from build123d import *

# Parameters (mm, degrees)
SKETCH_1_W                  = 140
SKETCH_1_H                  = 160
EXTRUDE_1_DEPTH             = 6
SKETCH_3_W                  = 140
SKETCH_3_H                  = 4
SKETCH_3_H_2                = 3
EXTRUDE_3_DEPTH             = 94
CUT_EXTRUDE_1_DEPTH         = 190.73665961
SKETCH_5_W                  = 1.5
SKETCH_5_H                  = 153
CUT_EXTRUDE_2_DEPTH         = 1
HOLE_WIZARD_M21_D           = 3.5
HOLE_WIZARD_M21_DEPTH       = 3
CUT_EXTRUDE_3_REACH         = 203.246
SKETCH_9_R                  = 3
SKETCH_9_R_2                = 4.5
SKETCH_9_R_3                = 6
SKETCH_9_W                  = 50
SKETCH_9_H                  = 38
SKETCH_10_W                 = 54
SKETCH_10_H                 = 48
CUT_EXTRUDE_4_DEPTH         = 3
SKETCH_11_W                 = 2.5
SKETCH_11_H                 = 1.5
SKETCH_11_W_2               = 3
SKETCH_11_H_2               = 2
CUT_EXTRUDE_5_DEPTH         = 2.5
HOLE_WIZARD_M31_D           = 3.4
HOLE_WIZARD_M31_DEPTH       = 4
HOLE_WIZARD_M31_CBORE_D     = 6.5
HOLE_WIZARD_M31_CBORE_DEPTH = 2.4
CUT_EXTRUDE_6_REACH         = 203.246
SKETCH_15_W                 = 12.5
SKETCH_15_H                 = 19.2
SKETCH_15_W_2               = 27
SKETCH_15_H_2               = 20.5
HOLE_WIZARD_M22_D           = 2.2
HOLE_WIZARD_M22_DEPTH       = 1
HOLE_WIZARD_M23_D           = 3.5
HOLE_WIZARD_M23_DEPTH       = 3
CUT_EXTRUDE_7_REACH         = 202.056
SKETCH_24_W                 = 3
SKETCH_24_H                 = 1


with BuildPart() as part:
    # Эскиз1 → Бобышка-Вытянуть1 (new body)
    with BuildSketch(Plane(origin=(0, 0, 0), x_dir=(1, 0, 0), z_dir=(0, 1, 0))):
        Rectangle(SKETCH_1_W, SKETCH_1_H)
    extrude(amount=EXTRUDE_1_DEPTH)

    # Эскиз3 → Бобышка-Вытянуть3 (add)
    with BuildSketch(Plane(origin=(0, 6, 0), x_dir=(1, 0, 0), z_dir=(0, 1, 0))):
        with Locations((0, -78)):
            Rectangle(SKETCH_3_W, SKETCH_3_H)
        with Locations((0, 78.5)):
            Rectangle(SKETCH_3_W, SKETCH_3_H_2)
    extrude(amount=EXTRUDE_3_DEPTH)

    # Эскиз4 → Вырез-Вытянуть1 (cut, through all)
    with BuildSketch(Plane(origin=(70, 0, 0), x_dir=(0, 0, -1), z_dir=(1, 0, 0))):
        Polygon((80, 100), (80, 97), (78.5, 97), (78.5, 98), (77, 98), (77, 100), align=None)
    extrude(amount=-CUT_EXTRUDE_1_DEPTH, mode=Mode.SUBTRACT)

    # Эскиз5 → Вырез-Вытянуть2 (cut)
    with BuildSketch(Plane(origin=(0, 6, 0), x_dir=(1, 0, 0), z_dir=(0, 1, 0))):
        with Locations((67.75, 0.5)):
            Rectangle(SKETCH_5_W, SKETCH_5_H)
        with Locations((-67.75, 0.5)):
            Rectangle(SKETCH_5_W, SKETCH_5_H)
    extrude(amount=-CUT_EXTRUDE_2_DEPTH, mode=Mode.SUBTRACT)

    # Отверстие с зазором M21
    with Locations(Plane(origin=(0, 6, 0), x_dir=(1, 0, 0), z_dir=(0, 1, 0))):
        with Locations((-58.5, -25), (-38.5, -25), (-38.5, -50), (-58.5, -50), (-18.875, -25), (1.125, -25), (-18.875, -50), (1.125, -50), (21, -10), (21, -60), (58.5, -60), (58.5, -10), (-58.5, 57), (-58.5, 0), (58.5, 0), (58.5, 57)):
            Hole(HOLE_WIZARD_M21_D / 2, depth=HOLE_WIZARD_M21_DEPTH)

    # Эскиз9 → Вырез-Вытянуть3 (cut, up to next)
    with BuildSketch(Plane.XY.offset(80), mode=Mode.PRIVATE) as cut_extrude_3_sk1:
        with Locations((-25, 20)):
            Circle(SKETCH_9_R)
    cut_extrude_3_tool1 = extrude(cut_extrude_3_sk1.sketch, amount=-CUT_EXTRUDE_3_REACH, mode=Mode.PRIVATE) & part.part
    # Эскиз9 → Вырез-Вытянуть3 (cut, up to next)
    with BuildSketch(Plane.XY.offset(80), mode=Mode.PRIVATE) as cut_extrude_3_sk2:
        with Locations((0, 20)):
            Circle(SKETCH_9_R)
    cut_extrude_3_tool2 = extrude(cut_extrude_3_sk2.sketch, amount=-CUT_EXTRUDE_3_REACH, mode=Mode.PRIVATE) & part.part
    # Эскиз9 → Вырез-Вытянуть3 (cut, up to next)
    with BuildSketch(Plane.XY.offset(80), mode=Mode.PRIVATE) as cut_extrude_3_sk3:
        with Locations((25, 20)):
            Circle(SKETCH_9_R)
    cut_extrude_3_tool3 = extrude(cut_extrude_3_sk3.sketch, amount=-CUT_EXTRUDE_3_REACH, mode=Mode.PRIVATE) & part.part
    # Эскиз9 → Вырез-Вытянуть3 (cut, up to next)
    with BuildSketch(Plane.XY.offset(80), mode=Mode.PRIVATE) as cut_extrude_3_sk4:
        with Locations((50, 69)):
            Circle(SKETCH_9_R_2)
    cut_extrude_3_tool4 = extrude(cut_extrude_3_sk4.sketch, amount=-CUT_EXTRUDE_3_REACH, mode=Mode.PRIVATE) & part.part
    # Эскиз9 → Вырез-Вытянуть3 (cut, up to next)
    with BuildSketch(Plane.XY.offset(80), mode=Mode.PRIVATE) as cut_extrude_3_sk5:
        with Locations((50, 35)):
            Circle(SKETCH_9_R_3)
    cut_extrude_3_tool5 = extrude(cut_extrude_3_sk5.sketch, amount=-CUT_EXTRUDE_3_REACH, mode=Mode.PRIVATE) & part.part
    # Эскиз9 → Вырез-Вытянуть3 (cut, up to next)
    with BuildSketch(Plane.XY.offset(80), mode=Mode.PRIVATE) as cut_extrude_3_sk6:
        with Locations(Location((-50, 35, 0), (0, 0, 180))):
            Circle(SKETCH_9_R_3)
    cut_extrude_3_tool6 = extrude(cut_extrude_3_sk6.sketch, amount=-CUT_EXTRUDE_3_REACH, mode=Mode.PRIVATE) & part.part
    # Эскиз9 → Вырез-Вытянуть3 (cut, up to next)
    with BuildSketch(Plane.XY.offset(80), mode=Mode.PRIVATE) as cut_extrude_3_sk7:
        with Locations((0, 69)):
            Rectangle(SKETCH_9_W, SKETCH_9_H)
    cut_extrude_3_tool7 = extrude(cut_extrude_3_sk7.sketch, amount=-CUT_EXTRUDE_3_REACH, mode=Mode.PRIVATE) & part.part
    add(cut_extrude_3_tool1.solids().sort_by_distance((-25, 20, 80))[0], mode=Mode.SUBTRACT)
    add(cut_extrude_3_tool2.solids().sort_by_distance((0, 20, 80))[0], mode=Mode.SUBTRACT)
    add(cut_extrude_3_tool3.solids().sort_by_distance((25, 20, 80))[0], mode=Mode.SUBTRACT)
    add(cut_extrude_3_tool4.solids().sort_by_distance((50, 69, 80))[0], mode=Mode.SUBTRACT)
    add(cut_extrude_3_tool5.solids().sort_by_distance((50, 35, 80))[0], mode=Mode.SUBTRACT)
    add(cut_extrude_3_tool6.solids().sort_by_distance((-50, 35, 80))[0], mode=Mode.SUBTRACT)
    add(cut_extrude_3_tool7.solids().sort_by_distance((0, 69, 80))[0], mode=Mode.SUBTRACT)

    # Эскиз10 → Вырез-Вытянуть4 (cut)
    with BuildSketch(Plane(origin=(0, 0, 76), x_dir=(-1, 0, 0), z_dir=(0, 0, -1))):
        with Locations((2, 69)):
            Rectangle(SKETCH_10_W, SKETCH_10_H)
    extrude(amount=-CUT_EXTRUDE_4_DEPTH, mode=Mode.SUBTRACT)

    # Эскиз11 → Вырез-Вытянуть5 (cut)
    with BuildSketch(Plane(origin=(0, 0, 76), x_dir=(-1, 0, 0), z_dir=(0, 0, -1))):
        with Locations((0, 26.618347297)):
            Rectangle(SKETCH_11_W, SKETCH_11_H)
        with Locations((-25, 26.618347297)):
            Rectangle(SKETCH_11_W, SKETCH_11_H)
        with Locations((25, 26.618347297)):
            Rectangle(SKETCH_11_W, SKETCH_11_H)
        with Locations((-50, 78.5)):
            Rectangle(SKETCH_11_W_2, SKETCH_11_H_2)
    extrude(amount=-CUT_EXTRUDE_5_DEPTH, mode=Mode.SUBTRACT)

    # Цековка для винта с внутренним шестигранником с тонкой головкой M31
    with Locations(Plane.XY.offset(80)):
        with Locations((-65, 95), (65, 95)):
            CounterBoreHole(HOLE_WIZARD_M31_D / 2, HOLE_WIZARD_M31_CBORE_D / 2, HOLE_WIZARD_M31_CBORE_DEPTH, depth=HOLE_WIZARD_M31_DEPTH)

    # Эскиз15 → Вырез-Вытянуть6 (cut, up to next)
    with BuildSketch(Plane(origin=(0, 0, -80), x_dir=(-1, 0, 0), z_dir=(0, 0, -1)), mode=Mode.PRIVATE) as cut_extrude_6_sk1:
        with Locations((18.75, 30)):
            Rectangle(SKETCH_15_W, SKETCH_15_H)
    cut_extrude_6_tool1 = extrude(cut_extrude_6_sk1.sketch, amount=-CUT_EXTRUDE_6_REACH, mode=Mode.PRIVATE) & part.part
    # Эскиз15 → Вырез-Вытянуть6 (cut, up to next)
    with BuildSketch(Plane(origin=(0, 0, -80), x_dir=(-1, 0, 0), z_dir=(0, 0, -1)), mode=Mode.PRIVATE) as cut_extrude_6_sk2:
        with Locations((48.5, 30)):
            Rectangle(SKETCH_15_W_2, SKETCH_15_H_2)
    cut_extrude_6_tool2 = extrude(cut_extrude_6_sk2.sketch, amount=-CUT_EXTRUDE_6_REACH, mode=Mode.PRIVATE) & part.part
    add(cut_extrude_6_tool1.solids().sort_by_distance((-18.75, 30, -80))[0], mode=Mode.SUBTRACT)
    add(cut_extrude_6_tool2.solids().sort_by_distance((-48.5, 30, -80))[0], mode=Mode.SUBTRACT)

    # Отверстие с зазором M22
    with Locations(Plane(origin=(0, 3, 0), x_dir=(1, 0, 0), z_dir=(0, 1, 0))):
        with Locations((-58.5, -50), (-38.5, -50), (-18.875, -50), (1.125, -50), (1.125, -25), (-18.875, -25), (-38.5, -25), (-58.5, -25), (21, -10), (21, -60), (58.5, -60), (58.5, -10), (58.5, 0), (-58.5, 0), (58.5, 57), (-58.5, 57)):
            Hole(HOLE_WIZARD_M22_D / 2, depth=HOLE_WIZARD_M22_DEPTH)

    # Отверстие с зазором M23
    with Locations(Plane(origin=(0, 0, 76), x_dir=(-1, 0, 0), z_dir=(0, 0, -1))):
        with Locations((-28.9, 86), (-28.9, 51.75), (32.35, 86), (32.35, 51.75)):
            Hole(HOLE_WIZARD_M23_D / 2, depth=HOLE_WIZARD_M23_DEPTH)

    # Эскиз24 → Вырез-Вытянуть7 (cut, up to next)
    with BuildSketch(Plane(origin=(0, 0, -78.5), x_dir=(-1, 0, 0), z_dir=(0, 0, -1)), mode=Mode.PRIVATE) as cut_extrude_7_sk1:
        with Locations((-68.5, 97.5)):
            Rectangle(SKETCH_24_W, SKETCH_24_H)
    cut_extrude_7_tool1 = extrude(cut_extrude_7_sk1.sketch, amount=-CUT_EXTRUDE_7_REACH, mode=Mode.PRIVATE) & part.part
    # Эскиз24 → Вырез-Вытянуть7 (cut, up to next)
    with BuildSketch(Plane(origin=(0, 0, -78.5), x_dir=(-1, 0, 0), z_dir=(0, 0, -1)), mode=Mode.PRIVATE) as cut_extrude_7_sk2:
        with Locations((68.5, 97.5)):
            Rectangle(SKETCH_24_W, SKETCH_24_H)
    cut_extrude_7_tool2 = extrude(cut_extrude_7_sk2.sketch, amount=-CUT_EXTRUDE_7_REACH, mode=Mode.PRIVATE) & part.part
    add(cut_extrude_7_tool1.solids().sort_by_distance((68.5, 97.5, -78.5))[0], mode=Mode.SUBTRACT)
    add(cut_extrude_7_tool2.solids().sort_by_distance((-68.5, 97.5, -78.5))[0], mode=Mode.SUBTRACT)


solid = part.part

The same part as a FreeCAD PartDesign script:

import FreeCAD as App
import Part
import Sketcher


def add_polygon(sketch, points):
    """Adds a closed chain of lines whose ends are joined by coincident constraints."""
    first, n = sketch.GeometryCount, len(points)
    for a, b in zip(points, points[1:] + points[:1]):
        sketch.addGeometry(Part.LineSegment(App.Vector(*a, 0), App.Vector(*b, 0)), False)
    for i in range(n):
        sketch.addConstraint(Sketcher.Constraint("Coincident", first + i, 2, first + (i + 1) % n, 1))

doc = App.newDocument("Part")
body = doc.addObject("PartDesign::Body", "Body")

sketch1 = body.newObject("Sketcher::SketchObject", "Sketch")
sketch1.AttachmentSupport = (doc.getObject("XZ_Plane"), [""])
sketch1.MapMode = "FlatFace"
add_polygon(sketch1, [(-70, -80), (-70, 80), (70, 80), (70, -80)])
sketch1.addConstraint(Sketcher.Constraint("Vertical", 0))
sketch1.addConstraint(Sketcher.Constraint("Horizontal", 1))
sketch1.addConstraint(Sketcher.Constraint("Vertical", 2))
sketch1.addConstraint(Sketcher.Constraint("Horizontal", 3))
sketch1.addConstraint(Sketcher.Constraint("Symmetric", 0, 2, 2, 2, -1, 1))
sketch1.addConstraint(Sketcher.Constraint("DistanceX", 1, 1, 1, 2, 140.0))
sketch1.addConstraint(Sketcher.Constraint("DistanceY", 0, 1, 0, 2, 160.0))
pad1 = body.newObject("PartDesign::Pad", "Pad")
pad1.Profile = sketch1
pad1.Length = 6
pad1.Reversed = True

sketch2 = body.newObject("Sketcher::SketchObject", "Sketch001")
sketch2.AttachmentSupport = (doc.getObject("XZ_Plane"), [""])
sketch2.MapMode = "FlatFace"
sketch2.AttachmentOffset = App.Placement(App.Vector(0, 0, -6), App.Rotation())
add_polygon(sketch2, [(-70, 76), (-70, 80), (70, 80), (70, 76)])
add_polygon(sketch2, [(-70, -80), (-70, -77), (70, -77), (70, -80)])
sketch2.addConstraint(Sketcher.Constraint("Vertical", 0))
sketch2.addConstraint(Sketcher.Constraint("Horizontal", 1))
sketch2.addConstraint(Sketcher.Constraint("Vertical", 2))
sketch2.addConstraint(Sketcher.Constraint("Horizontal", 3))
sketch2.addConstraint(Sketcher.Constraint("Vertical", 4))
sketch2.addConstraint(Sketcher.Constraint("Horizontal", 5))
sketch2.addConstraint(Sketcher.Constraint("Vertical", 6))
sketch2.addConstraint(Sketcher.Constraint("Horizontal", 7))
sketch2.addConstraint(Sketcher.Constraint("Symmetric", 0, 2, 6, 2, -1, 1))
sketch2.addConstraint(Sketcher.Constraint("Vertical", 3, 2, 4, 2))
sketch2.addConstraint(Sketcher.Constraint("Vertical", 2, 2, 5, 2))
sketch2.addConstraint(Sketcher.Constraint("DistanceX", 1, 1, 1, 2, 140.0))
sketch2.addConstraint(Sketcher.Constraint("DistanceY", 0, 1, 0, 2, 4.0))
sketch2.addConstraint(Sketcher.Constraint("DistanceY", 4, 1, 4, 2, 3.0))
sketch2.addConstraint(Sketcher.Constraint("DistanceY", -1, 1, 0, 2, 80.0))
pad2 = body.newObject("PartDesign::Pad", "Pad001")
pad2.Profile = sketch2
pad2.Length = 94
pad2.Reversed = True

sketch3 = body.newObject("Sketcher::SketchObject", "Sketch002")
sketch3.AttachmentSupport = (doc.getObject("YZ_Plane"), [""])
sketch3.MapMode = "FlatFace"
sketch3.AttachmentOffset = App.Placement(App.Vector(0, 0, 70), App.Rotation())
add_polygon(sketch3, [(97, -80), (100, -80), (100, -77), (98, -77), (98, -78.5), (97, -78.5)])
sketch3.addConstraint(Sketcher.Constraint("Horizontal", 0))
sketch3.addConstraint(Sketcher.Constraint("Vertical", 1))
sketch3.addConstraint(Sketcher.Constraint("Horizontal", 2))
sketch3.addConstraint(Sketcher.Constraint("Vertical", 3))
sketch3.addConstraint(Sketcher.Constraint("Horizontal", 4))
sketch3.addConstraint(Sketcher.Constraint("Vertical", 5))
sketch3.addConstraint(Sketcher.Constraint("Equal", 0, 1))
sketch3.addConstraint(Sketcher.Constraint("Equal", 3, 5))
sketch3.addConstraint(Sketcher.Constraint("DistanceX", 0, 1, 0, 2, 3.0))
sketch3.addConstraint(Sketcher.Constraint("DistanceX", 2, 2, 2, 1, 2.0))
sketch3.addConstraint(Sketcher.Constraint("DistanceX", -1, 1, 0, 2, 100.0))
sketch3.addConstraint(Sketcher.Constraint("DistanceY", 0, 2, -1, 1, 80.0))
pocket1 = body.newObject("PartDesign::Pocket", "Pocket")
pocket1.Profile = sketch3
pocket1.Type = "ThroughAll"

sketch4 = body.newObject("Sketcher::SketchObject", "Sketch003")
sketch4.AttachmentSupport = (doc.getObject("XZ_Plane"), [""])
sketch4.MapMode = "FlatFace"
sketch4.AttachmentOffset = App.Placement(App.Vector(0, 0, -6), App.Rotation())
add_polygon(sketch4, [(67, -77), (67, 76), (68.5, 76), (68.5, -77)])
add_polygon(sketch4, [(-68.5, -77), (-68.5, 76), (-67, 76), (-67, -77)])
sketch4.addConstraint(Sketcher.Constraint("Vertical", 0))
sketch4.addConstraint(Sketcher.Constraint("Horizontal", 1))
sketch4.addConstraint(Sketcher.Constraint("Vertical", 2))
sketch4.addConstraint(Sketcher.Constraint("Horizontal", 3))
sketch4.addConstraint(Sketcher.Constraint("Vertical", 4))
sketch4.addConstraint(Sketcher.Constraint("Horizontal", 5))
sketch4.addConstraint(Sketcher.Constraint("Vertical", 6))
sketch4.addConstraint(Sketcher.Constraint("Horizontal", 7))
sketch4.addConstraint(Sketcher.Constraint("Symmetric", 1, 2, 4, 2, -2))
sketch4.addConstraint(Sketcher.Constraint("Symmetric", 3, 2, 6, 2, -2))
sketch4.addConstraint(Sketcher.Constraint("DistanceY", 0, 1, 0, 2, 153.0))
sketch4.addConstraint(Sketcher.Constraint("DistanceX", 1, 1, 1, 2, 1.5))
sketch4.addConstraint(Sketcher.Constraint("DistanceX", -1, 1, 0, 2, 67.0))
sketch4.addConstraint(Sketcher.Constraint("DistanceY", -1, 1, 0, 2, 76.0))
pocket2 = body.newObject("PartDesign::Pocket", "Pocket001")
pocket2.Profile = sketch4
pocket2.Length = 1
pocket2.Reversed = True

sketch5 = body.newObject("Sketcher::SketchObject", "Sketch004")
sketch5.AttachmentSupport = (doc.getObject("XZ_Plane"), [""])
sketch5.MapMode = "FlatFace"
sketch5.AttachmentOffset = App.Placement(App.Vector(0, 0, -6), App.Rotation())
sketch5.addGeometry(Part.Circle(App.Vector(-58.5, 25, 0), App.Vector(0, 0, 1), 1.8), False)
sketch5.addGeometry(Part.Circle(App.Vector(-38.5, 25, 0), App.Vector(0, 0, 1), 1.8), False)
sketch5.addGeometry(Part.Circle(App.Vector(-38.5, 50, 0), App.Vector(0, 0, 1), 1.8), False)
sketch5.addGeometry(Part.Circle(App.Vector(-58.5, 50, 0), App.Vector(0, 0, 1), 1.8), False)
sketch5.addGeometry(Part.Circle(App.Vector(-18.9, 25, 0), App.Vector(0, 0, 1), 1.8), False)
sketch5.addGeometry(Part.Circle(App.Vector(1.1, 25, 0), App.Vector(0, 0, 1), 1.8), False)
sketch5.addGeometry(Part.Circle(App.Vector(-18.9, 50, 0), App.Vector(0, 0, 1), 1.8), False)
sketch5.addGeometry(Part.Circle(App.Vector(1.1, 50, 0), App.Vector(0, 0, 1), 1.8), False)
sketch5.addGeometry(Part.Circle(App.Vector(21, 10, 0), App.Vector(0, 0, 1), 1.8), False)
sketch5.addGeometry(Part.Circle(App.Vector(21, 60, 0), App.Vector(0, 0, 1), 1.8), False)
sketch5.addGeometry(Part.Circle(App.Vector(58.5, 60, 0), App.Vector(0, 0, 1), 1.8), False)
sketch5.addGeometry(Part.Circle(App.Vector(58.5, 10, 0), App.Vector(0, 0, 1), 1.8), False)
sketch5.addGeometry(Part.Circle(App.Vector(-58.5, -57, 0), App.Vector(0, 0, 1), 1.8), False)
sketch5.addGeometry(Part.Circle(App.Vector(-58.5, 0, 0), App.Vector(0, 0, 1), 1.8), False)
sketch5.addGeometry(Part.Circle(App.Vector(58.5, 0, 0), App.Vector(0, 0, 1), 1.8), False)
sketch5.addGeometry(Part.Circle(App.Vector(58.5, -57, 0), App.Vector(0, 0, 1), 1.8), False)
sketch5.addConstraint(Sketcher.Constraint("Equal", 0, 1))
sketch5.addConstraint(Sketcher.Constraint("Equal", 1, 2))
sketch5.addConstraint(Sketcher.Constraint("Equal", 2, 3))
sketch5.addConstraint(Sketcher.Constraint("Equal", 3, 4))
sketch5.addConstraint(Sketcher.Constraint("Equal", 4, 5))
sketch5.addConstraint(Sketcher.Constraint("Equal", 5, 6))
sketch5.addConstraint(Sketcher.Constraint("Equal", 6, 7))
sketch5.addConstraint(Sketcher.Constraint("Equal", 7, 8))
sketch5.addConstraint(Sketcher.Constraint("Equal", 8, 9))
sketch5.addConstraint(Sketcher.Constraint("Equal", 9, 10))
sketch5.addConstraint(Sketcher.Constraint("Equal", 10, 11))
sketch5.addConstraint(Sketcher.Constraint("Equal", 11, 12))
sketch5.addConstraint(Sketcher.Constraint("Equal", 12, 13))
sketch5.addConstraint(Sketcher.Constraint("Equal", 13, 14))
sketch5.addConstraint(Sketcher.Constraint("Equal", 14, 15))
sketch5.addConstraint(Sketcher.Constraint("Symmetric", 13, 3, 14, 3, -1, 1))
sketch5.addConstraint(Sketcher.Constraint("Symmetric", 12, 3, 15, 3, -2))
sketch5.addConstraint(Sketcher.Constraint("PointOnObject", 13, 3, -1))
sketch5.addConstraint(Sketcher.Constraint("Horizontal", 0, 3, 1, 3))
sketch5.addConstraint(Sketcher.Constraint("Horizontal", 2, 3, 3, 3))
sketch5.addConstraint(Sketcher.Constraint("Horizontal", 1, 3, 4, 3))
sketch5.addConstraint(Sketcher.Constraint("Horizontal", 4, 3, 5, 3))
sketch5.addConstraint(Sketcher.Constraint("Horizontal", 3, 3, 6, 3))
sketch5.addConstraint(Sketcher.Constraint("Horizontal", 6, 3, 7, 3))
sketch5.addConstraint(Sketcher.Constraint("Horizontal", 9, 3, 10, 3))
sketch5.addConstraint(Sketcher.Constraint("Horizontal", 8, 3, 11, 3))
sketch5.addConstraint(Sketcher.Constraint("Vertical", 1, 3, 2, 3))
sketch5.addConstraint(Sketcher.Constraint("Vertical", 0, 3, 3, 3))
sketch5.addConstraint(Sketcher.Constraint("Vertical", 4, 3, 6, 3))
sketch5.addConstraint(Sketcher.Constraint("Vertical", 5, 3, 7, 3))
sketch5.addConstraint(Sketcher.Constraint("Vertical", 8, 3, 9, 3))
sketch5.addConstraint(Sketcher.Constraint("Vertical", 10, 3, 11, 3))
sketch5.addConstraint(Sketcher.Constraint("Vertical", 3, 3, 12, 3))
sketch5.addConstraint(Sketcher.Constraint("Vertical", 12, 3, 13, 3))
sketch5.addConstraint(Sketcher.Constraint("Vertical", 11, 3, 14, 3))
sketch5.addConstraint(Sketcher.Constraint("Diameter", 0, 3.5))
sketch5.addConstraint(Sketcher.Constraint("DistanceY", -1, 1, 0, 3, 25.0))
sketch5.addConstraint(Sketcher.Constraint("DistanceY", -1, 1, 2, 3, 50.0))
sketch5.addConstraint(Sketcher.Constraint("DistanceX", -1, 1, 8, 3, 21.0))
sketch5.addConstraint(Sketcher.Constraint("DistanceY", -1, 1, 8, 3, 10.0))
sketch5.addConstraint(Sketcher.Constraint("DistanceY", -1, 1, 9, 3, 60.0))
sketch5.addConstraint(Sketcher.Constraint("DistanceY", 12, 3, -1, 1, 57.0))
sketch5.addConstraint(Sketcher.Constraint("DistanceX", 0, 3, 1, 3, 20.0))
sketch5.addConstraint(Sketcher.Constraint("DistanceX", 4, 3, 5, 3, 20.0))
sketch5.addConstraint(Sketcher.Constraint("DistanceX", 0, 3, -1, 1, 58.5))
sketch5.addConstraint(Sketcher.Constraint("DistanceX", 4, 3, -1, 1, 18.875))
doc.recompute()
hole = body.newObject("PartDesign::Hole", "Hole")
hole.Profile = sketch5
hole.ThreadType = "None"
hole.Diameter = 3.5
hole.DepthType = "Dimension"
hole.Depth = 3
hole.DrillPoint = "Flat"
hole.Reversed = True

sketch6 = body.newObject("Sketcher::SketchObject", "Sketch005")
sketch6.AttachmentSupport = (doc.getObject("XY_Plane"), [""])
sketch6.MapMode = "FlatFace"
sketch6.AttachmentOffset = App.Placement(App.Vector(0, 0, 80), App.Rotation())
sketch6.addGeometry(Part.Circle(App.Vector(-25, 20, 0), App.Vector(0, 0, 1), 3), False)
sketch6.addConstraint(Sketcher.Constraint("Diameter", 0, 6.0))
sketch6.addConstraint(Sketcher.Constraint("DistanceX", 0, 3, -1, 1, 25.0))
sketch6.addConstraint(Sketcher.Constraint("DistanceY", -1, 1, 0, 3, 20.0))
pocket3 = body.newObject("PartDesign::Pocket", "Pocket002")
pocket3.Profile = sketch6
pocket3.Type = "UpToFirst"

sketch7 = body.newObject("Sketcher::SketchObject", "Sketch006")
sketch7.AttachmentSupport = (doc.getObject("XY_Plane"), [""])
sketch7.MapMode = "FlatFace"
sketch7.AttachmentOffset = App.Placement(App.Vector(0, 0, 80), App.Rotation())
sketch7.addGeometry(Part.Circle(App.Vector(0, 20, 0), App.Vector(0, 0, 1), 3), False)
sketch7.addConstraint(Sketcher.Constraint("PointOnObject", 0, 3, -2))
sketch7.addConstraint(Sketcher.Constraint("Diameter", 0, 6.0))
sketch7.addConstraint(Sketcher.Constraint("DistanceY", -1, 1, 0, 3, 20.0))
pocket4 = body.newObject("PartDesign::Pocket", "Pocket003")
pocket4.Profile = sketch7
pocket4.Type = "UpToFirst"

sketch8 = body.newObject("Sketcher::SketchObject", "Sketch007")
sketch8.AttachmentSupport = (doc.getObject("XY_Plane"), [""])
sketch8.MapMode = "FlatFace"
sketch8.AttachmentOffset = App.Placement(App.Vector(0, 0, 80), App.Rotation())
sketch8.addGeometry(Part.Circle(App.Vector(25, 20, 0), App.Vector(0, 0, 1), 3), False)
sketch8.addConstraint(Sketcher.Constraint("Diameter", 0, 6.0))
sketch8.addConstraint(Sketcher.Constraint("DistanceX", -1, 1, 0, 3, 25.0))
sketch8.addConstraint(Sketcher.Constraint("DistanceY", -1, 1, 0, 3, 20.0))
pocket5 = body.newObject("PartDesign::Pocket", "Pocket004")
pocket5.Profile = sketch8
pocket5.Type = "UpToFirst"

sketch9 = body.newObject("Sketcher::SketchObject", "Sketch008")
sketch9.AttachmentSupport = (doc.getObject("XY_Plane"), [""])
sketch9.MapMode = "FlatFace"
sketch9.AttachmentOffset = App.Placement(App.Vector(0, 0, 80), App.Rotation())
sketch9.addGeometry(Part.Circle(App.Vector(50, 69, 0), App.Vector(0, 0, 1), 4.5), False)
sketch9.addConstraint(Sketcher.Constraint("Diameter", 0, 9.0))
sketch9.addConstraint(Sketcher.Constraint("DistanceX", -1, 1, 0, 3, 50.0))
sketch9.addConstraint(Sketcher.Constraint("DistanceY", -1, 1, 0, 3, 69.0))
pocket6 = body.newObject("PartDesign::Pocket", "Pocket005")
pocket6.Profile = sketch9
pocket6.Type = "UpToFirst"

sketch10 = body.newObject("Sketcher::SketchObject", "Sketch009")
sketch10.AttachmentSupport = (doc.getObject("XY_Plane"), [""])
sketch10.MapMode = "FlatFace"
sketch10.AttachmentOffset = App.Placement(App.Vector(0, 0, 80), App.Rotation())
sketch10.addGeometry(Part.Circle(App.Vector(50, 35, 0), App.Vector(0, 0, 1), 6), False)
sketch10.addConstraint(Sketcher.Constraint("Diameter", 0, 12.0))
sketch10.addConstraint(Sketcher.Constraint("DistanceX", -1, 1, 0, 3, 50.0))
sketch10.addConstraint(Sketcher.Constraint("DistanceY", -1, 1, 0, 3, 35.0))
pocket7 = body.newObject("PartDesign::Pocket", "Pocket006")
pocket7.Profile = sketch10
pocket7.Type = "UpToFirst"

sketch11 = body.newObject("Sketcher::SketchObject", "Sketch010")
sketch11.AttachmentSupport = (doc.getObject("XY_Plane"), [""])
sketch11.MapMode = "FlatFace"
sketch11.AttachmentOffset = App.Placement(App.Vector(0, 0, 80), App.Rotation())
sketch11.addGeometry(Part.Circle(App.Vector(-50, 35, 0), App.Vector(0, 0, 1), 6), False)
sketch11.addConstraint(Sketcher.Constraint("Diameter", 0, 12.0))
sketch11.addConstraint(Sketcher.Constraint("DistanceX", 0, 3, -1, 1, 50.0))
sketch11.addConstraint(Sketcher.Constraint("DistanceY", -1, 1, 0, 3, 35.0))
pocket8 = body.newObject("PartDesign::Pocket", "Pocket007")
pocket8.Profile = sketch11
pocket8.Type = "UpToFirst"

sketch12 = body.newObject("Sketcher::SketchObject", "Sketch011")
sketch12.AttachmentSupport = (doc.getObject("XY_Plane"), [""])
sketch12.MapMode = "FlatFace"
sketch12.AttachmentOffset = App.Placement(App.Vector(0, 0, 80), App.Rotation())
add_polygon(sketch12, [(-25, 88), (-25, 50), (25, 50), (25, 88)])
sketch12.addConstraint(Sketcher.Constraint("Vertical", 0))
sketch12.addConstraint(Sketcher.Constraint("Horizontal", 1))
sketch12.addConstraint(Sketcher.Constraint("Vertical", 2))
sketch12.addConstraint(Sketcher.Constraint("Horizontal", 3))
sketch12.addConstraint(Sketcher.Constraint("DistanceX", 1, 1, 1, 2, 50.0))
sketch12.addConstraint(Sketcher.Constraint("DistanceY", 0, 2, 0, 1, 38.0))
sketch12.addConstraint(Sketcher.Constraint("DistanceX", 0, 2, -1, 1, 25.0))
sketch12.addConstraint(Sketcher.Constraint("DistanceY", -1, 1, 0, 2, 50.0))
pocket9 = body.newObject("PartDesign::Pocket", "Pocket008")
pocket9.Profile = sketch12
pocket9.Type = "UpToFirst"

sketch13 = body.newObject("Sketcher::SketchObject", "Sketch012")
sketch13.AttachmentSupport = (doc.getObject("XY_Plane"), [""])
sketch13.MapMode = "FlatFace"
sketch13.AttachmentOffset = App.Placement(App.Vector(0, 0, 76), App.Rotation())
add_polygon(sketch13, [(25, 93), (25, 45), (-29, 45), (-29, 93)])
sketch13.addConstraint(Sketcher.Constraint("Vertical", 0))
sketch13.addConstraint(Sketcher.Constraint("Horizontal", 1))
sketch13.addConstraint(Sketcher.Constraint("Vertical", 2))
sketch13.addConstraint(Sketcher.Constraint("Horizontal", 3))
sketch13.addConstraint(Sketcher.Constraint("DistanceX", 1, 2, 1, 1, 54.0))
sketch13.addConstraint(Sketcher.Constraint("DistanceY", 0, 2, 0, 1, 48.0))
sketch13.addConstraint(Sketcher.Constraint("DistanceX", -1, 1, 0, 2, 25.0))
sketch13.addConstraint(Sketcher.Constraint("DistanceY", -1, 1, 0, 2, 45.0))
pocket10 = body.newObject("PartDesign::Pocket", "Pocket009")
pocket10.Profile = sketch13
pocket10.Length = 3
pocket10.Reversed = True

sketch14 = body.newObject("Sketcher::SketchObject", "Sketch013")
sketch14.AttachmentSupport = (doc.getObject("XY_Plane"), [""])
sketch14.MapMode = "FlatFace"
sketch14.AttachmentOffset = App.Placement(App.Vector(0, 0, 76), App.Rotation())
add_polygon(sketch14, [(1.2, 27.4), (1.2, 25.9), (-1.2, 25.9), (-1.2, 27.4)])
add_polygon(sketch14, [(26.2, 27.4), (26.2, 25.9), (23.8, 25.9), (23.8, 27.4)])
add_polygon(sketch14, [(-23.8, 27.4), (-23.8, 25.9), (-26.2, 25.9), (-26.2, 27.4)])
add_polygon(sketch14, [(51.5, 79.5), (51.5, 77.5), (48.5, 77.5), (48.5, 79.5)])
sketch14.addConstraint(Sketcher.Constraint("Vertical", 0))
sketch14.addConstraint(Sketcher.Constraint("Horizontal", 1))
sketch14.addConstraint(Sketcher.Constraint("Vertical", 2))
sketch14.addConstraint(Sketcher.Constraint("Horizontal", 3))
sketch14.addConstraint(Sketcher.Constraint("Vertical", 4))
sketch14.addConstraint(Sketcher.Constraint("Horizontal", 5))
sketch14.addConstraint(Sketcher.Constraint("Vertical", 6))
sketch14.addConstraint(Sketcher.Constraint("Horizontal", 7))
sketch14.addConstraint(Sketcher.Constraint("Vertical", 8))
sketch14.addConstraint(Sketcher.Constraint("Horizontal", 9))
sketch14.addConstraint(Sketcher.Constraint("Vertical", 10))
sketch14.addConstraint(Sketcher.Constraint("Horizontal", 11))
sketch14.addConstraint(Sketcher.Constraint("Vertical", 12))
sketch14.addConstraint(Sketcher.Constraint("Horizontal", 13))
sketch14.addConstraint(Sketcher.Constraint("Vertical", 14))
sketch14.addConstraint(Sketcher.Constraint("Horizontal", 15))
sketch14.addConstraint(Sketcher.Constraint("Symmetric", 5, 2, 8, 2, -2))
sketch14.addConstraint(Sketcher.Constraint("Symmetric", 7, 2, 10, 2, -2))
sketch14.addConstraint(Sketcher.Constraint("Horizontal", 1, 2, 4, 2))
sketch14.addConstraint(Sketcher.Constraint("Horizontal", 3, 2, 6, 2))
sketch14.addConstraint(Sketcher.Constraint("Equal", 3, 5))
sketch14.addConstraint(Sketcher.Constraint("DistanceX", 13, 2, 13, 1, 3.0))
sketch14.addConstraint(Sketcher.Constraint("DistanceY", 12, 2, 12, 1, 2.0))
sketch14.addConstraint(Sketcher.Constraint("DistanceX", 1, 2, 1, 1, 2.5))
sketch14.addConstraint(Sketcher.Constraint("DistanceY", 0, 2, 0, 1, 1.5))
sketch14.addConstraint(Sketcher.Constraint("DistanceX", 0, 2, 4, 2, 25.0))
sketch14.addConstraint(Sketcher.Constraint("DistanceX", 8, 2, 0, 2, 25.0))
sketch14.addConstraint(Sketcher.Constraint("DistanceX", -1, 1, 12, 2, 51.5))
sketch14.addConstraint(Sketcher.Constraint("DistanceY", -1, 1, 12, 2, 77.5))
sketch14.addConstraint(Sketcher.Constraint("DistanceY", -1, 1, 0, 2, 25.868347))
pocket11 = body.newObject("PartDesign::Pocket", "Pocket010")
pocket11.Profile = sketch14
pocket11.Length = 2.5
pocket11.Reversed = True

sketch15 = body.newObject("Sketcher::SketchObject", "Sketch014")
sketch15.AttachmentSupport = (doc.getObject("XY_Plane"), [""])
sketch15.MapMode = "FlatFace"
sketch15.AttachmentOffset = App.Placement(App.Vector(0, 0, 80), App.Rotation())
sketch15.addGeometry(Part.Circle(App.Vector(-65, 95, 0), App.Vector(0, 0, 1), 1.7), False)
sketch15.addGeometry(Part.Circle(App.Vector(65, 95, 0), App.Vector(0, 0, 1), 1.7), False)
sketch15.addConstraint(Sketcher.Constraint("Equal", 0, 1))
sketch15.addConstraint(Sketcher.Constraint("Symmetric", 0, 3, 1, 3, -2))
sketch15.addConstraint(Sketcher.Constraint("Diameter", 0, 3.4))
sketch15.addConstraint(Sketcher.Constraint("DistanceX", 0, 3, -1, 1, 65.0))
sketch15.addConstraint(Sketcher.Constraint("DistanceY", -1, 1, 0, 3, 95.0))
doc.recompute()
hole2 = body.newObject("PartDesign::Hole", "Hole001")
hole2.Profile = sketch15
hole2.ThreadType = "None"
hole2.Diameter = 3.4
hole2.DepthType = "Dimension"
hole2.Depth = 4
hole2.DrillPoint = "Flat"
hole2.HoleCutType = "Counterbore"
hole2.HoleCutDiameter = 6.5
hole2.HoleCutDepth = 2.4

sketch16 = body.newObject("Sketcher::SketchObject", "Sketch015")
sketch16.AttachmentSupport = (doc.getObject("XY_Plane"), [""])
sketch16.MapMode = "FlatFace"
sketch16.AttachmentOffset = App.Placement(App.Vector(0, 0, -80), App.Rotation())
add_polygon(sketch16, [(-12, 40), (-12, 20), (-25, 20), (-25, 40)])
sketch16.addConstraint(Sketcher.Constraint("Vertical", 0))
sketch16.addConstraint(Sketcher.Constraint("Horizontal", 1))
sketch16.addConstraint(Sketcher.Constraint("Vertical", 2))
sketch16.addConstraint(Sketcher.Constraint("Horizontal", 3))
sketch16.addConstraint(Sketcher.Constraint("DistanceX", 1, 2, 1, 1, 12.5))
sketch16.addConstraint(Sketcher.Constraint("DistanceY", 0, 2, 0, 1, 19.2))
sketch16.addConstraint(Sketcher.Constraint("DistanceX", 1, 2, -1, 1, 25.0))
sketch16.addConstraint(Sketcher.Constraint("DistanceY", -1, 1, 0, 2, 20.4))
pocket12 = body.newObject("PartDesign::Pocket", "Pocket011")
pocket12.Profile = sketch16
pocket12.Type = "UpToFirst"
pocket12.Reversed = True

sketch17 = body.newObject("Sketcher::SketchObject", "Sketch016")
sketch17.AttachmentSupport = (doc.getObject("XY_Plane"), [""])
sketch17.MapMode = "FlatFace"
sketch17.AttachmentOffset = App.Placement(App.Vector(0, 0, -80), App.Rotation())
add_polygon(sketch17, [(-35, 40), (-35, 20), (-62, 20), (-62, 40)])
sketch17.addConstraint(Sketcher.Constraint("Vertical", 0))
sketch17.addConstraint(Sketcher.Constraint("Horizontal", 1))
sketch17.addConstraint(Sketcher.Constraint("Vertical", 2))
sketch17.addConstraint(Sketcher.Constraint("Horizontal", 3))
sketch17.addConstraint(Sketcher.Constraint("DistanceX", 1, 2, 1, 1, 27.0))
sketch17.addConstraint(Sketcher.Constraint("DistanceY", 0, 2, 0, 1, 20.5))
sketch17.addConstraint(Sketcher.Constraint("DistanceX", 0, 2, -1, 1, 35.0))
sketch17.addConstraint(Sketcher.Constraint("DistanceY", -1, 1, 0, 2, 19.75))
pocket13 = body.newObject("PartDesign::Pocket", "Pocket012")
pocket13.Profile = sketch17
pocket13.Type = "UpToFirst"
pocket13.Reversed = True

sketch18 = body.newObject("Sketcher::SketchObject", "Sketch017")
sketch18.AttachmentSupport = (doc.getObject("XZ_Plane"), [""])
sketch18.MapMode = "FlatFace"
sketch18.AttachmentOffset = App.Placement(App.Vector(0, 0, -3), App.Rotation())
sketch18.addGeometry(Part.Circle(App.Vector(-58.5, 50, 0), App.Vector(0, 0, 1), 1.1), False)
sketch18.addGeometry(Part.Circle(App.Vector(-38.5, 50, 0), App.Vector(0, 0, 1), 1.1), False)
sketch18.addGeometry(Part.Circle(App.Vector(-18.9, 50, 0), App.Vector(0, 0, 1), 1.1), False)
sketch18.addGeometry(Part.Circle(App.Vector(1.1, 50, 0), App.Vector(0, 0, 1), 1.1), False)
sketch18.addGeometry(Part.Circle(App.Vector(1.1, 25, 0), App.Vector(0, 0, 1), 1.1), False)
sketch18.addGeometry(Part.Circle(App.Vector(-18.9, 25, 0), App.Vector(0, 0, 1), 1.1), False)
sketch18.addGeometry(Part.Circle(App.Vector(-38.5, 25, 0), App.Vector(0, 0, 1), 1.1), False)
sketch18.addGeometry(Part.Circle(App.Vector(-58.5, 25, 0), App.Vector(0, 0, 1), 1.1), False)
sketch18.addGeometry(Part.Circle(App.Vector(21, 10, 0), App.Vector(0, 0, 1), 1.1), False)
sketch18.addGeometry(Part.Circle(App.Vector(21, 60, 0), App.Vector(0, 0, 1), 1.1), False)
sketch18.addGeometry(Part.Circle(App.Vector(58.5, 60, 0), App.Vector(0, 0, 1), 1.1), False)
sketch18.addGeometry(Part.Circle(App.Vector(58.5, 10, 0), App.Vector(0, 0, 1), 1.1), False)
sketch18.addGeometry(Part.Circle(App.Vector(58.5, 0, 0), App.Vector(0, 0, 1), 1.1), False)
sketch18.addGeometry(Part.Circle(App.Vector(-58.5, 0, 0), App.Vector(0, 0, 1), 1.1), False)
sketch18.addGeometry(Part.Circle(App.Vector(58.5, -57, 0), App.Vector(0, 0, 1), 1.1), False)
sketch18.addGeometry(Part.Circle(App.Vector(-58.5, -57, 0), App.Vector(0, 0, 1), 1.1), False)
sketch18.addConstraint(Sketcher.Constraint("Equal", 0, 1))
sketch18.addConstraint(Sketcher.Constraint("Equal", 1, 2))
sketch18.addConstraint(Sketcher.Constraint("Equal", 2, 3))
sketch18.addConstraint(Sketcher.Constraint("Equal", 3, 4))
sketch18.addConstraint(Sketcher.Constraint("Equal", 4, 5))
sketch18.addConstraint(Sketcher.Constraint("Equal", 5, 6))
sketch18.addConstraint(Sketcher.Constraint("Equal", 6, 7))
sketch18.addConstraint(Sketcher.Constraint("Equal", 7, 8))
sketch18.addConstraint(Sketcher.Constraint("Equal", 8, 9))
sketch18.addConstraint(Sketcher.Constraint("Equal", 9, 10))
sketch18.addConstraint(Sketcher.Constraint("Equal", 10, 11))
sketch18.addConstraint(Sketcher.Constraint("Equal", 11, 12))
sketch18.addConstraint(Sketcher.Constraint("Equal", 12, 13))
sketch18.addConstraint(Sketcher.Constraint("Equal", 13, 14))
sketch18.addConstraint(Sketcher.Constraint("Equal", 14, 15))
sketch18.addConstraint(Sketcher.Constraint("Symmetric", 12, 3, 13, 3, -1, 1))
sketch18.addConstraint(Sketcher.Constraint("Symmetric", 14, 3, 15, 3, -2))
sketch18.addConstraint(Sketcher.Constraint("PointOnObject", 12, 3, -1))
sketch18.addConstraint(Sketcher.Constraint("Horizontal", 0, 3, 1, 3))
sketch18.addConstraint(Sketcher.Constraint("Horizontal", 1, 3, 2, 3))
sketch18.addConstraint(Sketcher.Constraint("Horizontal", 2, 3, 3, 3))
sketch18.addConstraint(Sketcher.Constraint("Horizontal", 4, 3, 5, 3))
sketch18.addConstraint(Sketcher.Constraint("Horizontal", 5, 3, 6, 3))
sketch18.addConstraint(Sketcher.Constraint("Horizontal", 6, 3, 7, 3))
sketch18.addConstraint(Sketcher.Constraint("Horizontal", 9, 3, 10, 3))
sketch18.addConstraint(Sketcher.Constraint("Horizontal", 8, 3, 11, 3))
sketch18.addConstraint(Sketcher.Constraint("Vertical", 3, 3, 4, 3))
sketch18.addConstraint(Sketcher.Constraint("Vertical", 2, 3, 5, 3))
sketch18.addConstraint(Sketcher.Constraint("Vertical", 1, 3, 6, 3))
sketch18.addConstraint(Sketcher.Constraint("Vertical", 0, 3, 7, 3))
sketch18.addConstraint(Sketcher.Constraint("Vertical", 8, 3, 9, 3))
sketch18.addConstraint(Sketcher.Constraint("Vertical", 10, 3, 11, 3))
sketch18.addConstraint(Sketcher.Constraint("Vertical", 11, 3, 12, 3))
sketch18.addConstraint(Sketcher.Constraint("Vertical", 7, 3, 13, 3))
sketch18.addConstraint(Sketcher.Constraint("Vertical", 12, 3, 14, 3))
sketch18.addConstraint(Sketcher.Constraint("Diameter", 0, 2.2))
sketch18.addConstraint(Sketcher.Constraint("DistanceY", -1, 1, 0, 3, 50.0))
sketch18.addConstraint(Sketcher.Constraint("DistanceY", -1, 1, 4, 3, 25.0))
sketch18.addConstraint(Sketcher.Constraint("DistanceX", -1, 1, 8, 3, 21.0))
sketch18.addConstraint(Sketcher.Constraint("DistanceY", -1, 1, 8, 3, 10.0))
sketch18.addConstraint(Sketcher.Constraint("DistanceY", -1, 1, 9, 3, 60.0))
sketch18.addConstraint(Sketcher.Constraint("DistanceY", 14, 3, -1, 1, 57.0))
sketch18.addConstraint(Sketcher.Constraint("DistanceX", 0, 3, 1, 3, 20.0))
sketch18.addConstraint(Sketcher.Constraint("DistanceX", 2, 3, 3, 3, 20.0))
sketch18.addConstraint(Sketcher.Constraint("DistanceX", 0, 3, -1, 1, 58.5))
sketch18.addConstraint(Sketcher.Constraint("DistanceX", 2, 3, -1, 1, 18.875))
doc.recompute()
hole3 = body.newObject("PartDesign::Hole", "Hole002")
hole3.Profile = sketch18
hole3.ThreadType = "None"
hole3.Diameter = 2.2
hole3.DepthType = "Dimension"
hole3.Depth = 1
hole3.DrillPoint = "Flat"
hole3.Reversed = True

sketch19 = body.newObject("Sketcher::SketchObject", "Sketch018")
sketch19.AttachmentSupport = (doc.getObject("XY_Plane"), [""])
sketch19.MapMode = "FlatFace"
sketch19.AttachmentOffset = App.Placement(App.Vector(0, 0, 76), App.Rotation())
sketch19.addGeometry(Part.Circle(App.Vector(28.9, 86, 0), App.Vector(0, 0, 1), 1.8), False)
sketch19.addGeometry(Part.Circle(App.Vector(28.9, 51.8, 0), App.Vector(0, 0, 1), 1.8), False)
sketch19.addGeometry(Part.Circle(App.Vector(-32.4, 86, 0), App.Vector(0, 0, 1), 1.8), False)
sketch19.addGeometry(Part.Circle(App.Vector(-32.4, 51.8, 0), App.Vector(0, 0, 1), 1.8), False)
sketch19.addConstraint(Sketcher.Constraint("Equal", 0, 1))
sketch19.addConstraint(Sketcher.Constraint("Equal", 1, 2))
sketch19.addConstraint(Sketcher.Constraint("Equal", 2, 3))
sketch19.addConstraint(Sketcher.Constraint("Horizontal", 0, 3, 2, 3))
sketch19.addConstraint(Sketcher.Constraint("Horizontal", 1, 3, 3, 3))
sketch19.addConstraint(Sketcher.Constraint("Vertical", 0, 3, 1, 3))
sketch19.addConstraint(Sketcher.Constraint("Vertical", 2, 3, 3, 3))
sketch19.addConstraint(Sketcher.Constraint("Diameter", 0, 3.5))
sketch19.addConstraint(Sketcher.Constraint("DistanceY", -1, 1, 0, 3, 86.0))
sketch19.addConstraint(Sketcher.Constraint("DistanceX", -1, 1, 0, 3, 28.9))
sketch19.addConstraint(Sketcher.Constraint("DistanceY", -1, 1, 1, 3, 51.75))
sketch19.addConstraint(Sketcher.Constraint("DistanceX", 2, 3, -1, 1, 32.35))
doc.recompute()
hole4 = body.newObject("PartDesign::Hole", "Hole003")
hole4.Profile = sketch19
hole4.ThreadType = "None"
hole4.Diameter = 3.5
hole4.DepthType = "Dimension"
hole4.Depth = 3
hole4.DrillPoint = "Flat"
hole4.Reversed = True

sketch20 = body.newObject("Sketcher::SketchObject", "Sketch019")
sketch20.AttachmentSupport = (doc.getObject("XY_Plane"), [""])
sketch20.MapMode = "FlatFace"
sketch20.AttachmentOffset = App.Placement(App.Vector(0, 0, -78.5), App.Rotation())
add_polygon(sketch20, [(70, 98), (70, 97), (67, 97), (67, 98)])
sketch20.addConstraint(Sketcher.Constraint("Vertical", 0))
sketch20.addConstraint(Sketcher.Constraint("Horizontal", 1))
sketch20.addConstraint(Sketcher.Constraint("Vertical", 2))
sketch20.addConstraint(Sketcher.Constraint("Horizontal", 3))
sketch20.addConstraint(Sketcher.Constraint("DistanceX", 1, 2, 1, 1, 3.0))
sketch20.addConstraint(Sketcher.Constraint("DistanceY", 0, 2, 0, 1, 1.0))
sketch20.addConstraint(Sketcher.Constraint("DistanceX", -1, 1, 0, 2, 70.0))
sketch20.addConstraint(Sketcher.Constraint("DistanceY", -1, 1, 0, 2, 97.0))
pocket14 = body.newObject("PartDesign::Pocket", "Pocket013")
pocket14.Profile = sketch20
pocket14.Type = "UpToFirst"
pocket14.Reversed = True

sketch21 = body.newObject("Sketcher::SketchObject", "Sketch020")
sketch21.AttachmentSupport = (doc.getObject("XY_Plane"), [""])
sketch21.MapMode = "FlatFace"
sketch21.AttachmentOffset = App.Placement(App.Vector(0, 0, -78.5), App.Rotation())
add_polygon(sketch21, [(-67, 98), (-67, 97), (-70, 97), (-70, 98)])
sketch21.addConstraint(Sketcher.Constraint("Vertical", 0))
sketch21.addConstraint(Sketcher.Constraint("Horizontal", 1))
sketch21.addConstraint(Sketcher.Constraint("Vertical", 2))
sketch21.addConstraint(Sketcher.Constraint("Horizontal", 3))
sketch21.addConstraint(Sketcher.Constraint("DistanceX", 1, 2, 1, 1, 3.0))
sketch21.addConstraint(Sketcher.Constraint("DistanceY", 0, 2, 0, 1, 1.0))
sketch21.addConstraint(Sketcher.Constraint("DistanceX", 0, 2, -1, 1, 67.0))
sketch21.addConstraint(Sketcher.Constraint("DistanceY", -1, 1, 0, 2, 97.0))
pocket15 = body.newObject("PartDesign::Pocket", "Pocket014")
pocket15.Profile = sketch21
pocket15.Type = "UpToFirst"
pocket15.Reversed = True

doc.recompute()
